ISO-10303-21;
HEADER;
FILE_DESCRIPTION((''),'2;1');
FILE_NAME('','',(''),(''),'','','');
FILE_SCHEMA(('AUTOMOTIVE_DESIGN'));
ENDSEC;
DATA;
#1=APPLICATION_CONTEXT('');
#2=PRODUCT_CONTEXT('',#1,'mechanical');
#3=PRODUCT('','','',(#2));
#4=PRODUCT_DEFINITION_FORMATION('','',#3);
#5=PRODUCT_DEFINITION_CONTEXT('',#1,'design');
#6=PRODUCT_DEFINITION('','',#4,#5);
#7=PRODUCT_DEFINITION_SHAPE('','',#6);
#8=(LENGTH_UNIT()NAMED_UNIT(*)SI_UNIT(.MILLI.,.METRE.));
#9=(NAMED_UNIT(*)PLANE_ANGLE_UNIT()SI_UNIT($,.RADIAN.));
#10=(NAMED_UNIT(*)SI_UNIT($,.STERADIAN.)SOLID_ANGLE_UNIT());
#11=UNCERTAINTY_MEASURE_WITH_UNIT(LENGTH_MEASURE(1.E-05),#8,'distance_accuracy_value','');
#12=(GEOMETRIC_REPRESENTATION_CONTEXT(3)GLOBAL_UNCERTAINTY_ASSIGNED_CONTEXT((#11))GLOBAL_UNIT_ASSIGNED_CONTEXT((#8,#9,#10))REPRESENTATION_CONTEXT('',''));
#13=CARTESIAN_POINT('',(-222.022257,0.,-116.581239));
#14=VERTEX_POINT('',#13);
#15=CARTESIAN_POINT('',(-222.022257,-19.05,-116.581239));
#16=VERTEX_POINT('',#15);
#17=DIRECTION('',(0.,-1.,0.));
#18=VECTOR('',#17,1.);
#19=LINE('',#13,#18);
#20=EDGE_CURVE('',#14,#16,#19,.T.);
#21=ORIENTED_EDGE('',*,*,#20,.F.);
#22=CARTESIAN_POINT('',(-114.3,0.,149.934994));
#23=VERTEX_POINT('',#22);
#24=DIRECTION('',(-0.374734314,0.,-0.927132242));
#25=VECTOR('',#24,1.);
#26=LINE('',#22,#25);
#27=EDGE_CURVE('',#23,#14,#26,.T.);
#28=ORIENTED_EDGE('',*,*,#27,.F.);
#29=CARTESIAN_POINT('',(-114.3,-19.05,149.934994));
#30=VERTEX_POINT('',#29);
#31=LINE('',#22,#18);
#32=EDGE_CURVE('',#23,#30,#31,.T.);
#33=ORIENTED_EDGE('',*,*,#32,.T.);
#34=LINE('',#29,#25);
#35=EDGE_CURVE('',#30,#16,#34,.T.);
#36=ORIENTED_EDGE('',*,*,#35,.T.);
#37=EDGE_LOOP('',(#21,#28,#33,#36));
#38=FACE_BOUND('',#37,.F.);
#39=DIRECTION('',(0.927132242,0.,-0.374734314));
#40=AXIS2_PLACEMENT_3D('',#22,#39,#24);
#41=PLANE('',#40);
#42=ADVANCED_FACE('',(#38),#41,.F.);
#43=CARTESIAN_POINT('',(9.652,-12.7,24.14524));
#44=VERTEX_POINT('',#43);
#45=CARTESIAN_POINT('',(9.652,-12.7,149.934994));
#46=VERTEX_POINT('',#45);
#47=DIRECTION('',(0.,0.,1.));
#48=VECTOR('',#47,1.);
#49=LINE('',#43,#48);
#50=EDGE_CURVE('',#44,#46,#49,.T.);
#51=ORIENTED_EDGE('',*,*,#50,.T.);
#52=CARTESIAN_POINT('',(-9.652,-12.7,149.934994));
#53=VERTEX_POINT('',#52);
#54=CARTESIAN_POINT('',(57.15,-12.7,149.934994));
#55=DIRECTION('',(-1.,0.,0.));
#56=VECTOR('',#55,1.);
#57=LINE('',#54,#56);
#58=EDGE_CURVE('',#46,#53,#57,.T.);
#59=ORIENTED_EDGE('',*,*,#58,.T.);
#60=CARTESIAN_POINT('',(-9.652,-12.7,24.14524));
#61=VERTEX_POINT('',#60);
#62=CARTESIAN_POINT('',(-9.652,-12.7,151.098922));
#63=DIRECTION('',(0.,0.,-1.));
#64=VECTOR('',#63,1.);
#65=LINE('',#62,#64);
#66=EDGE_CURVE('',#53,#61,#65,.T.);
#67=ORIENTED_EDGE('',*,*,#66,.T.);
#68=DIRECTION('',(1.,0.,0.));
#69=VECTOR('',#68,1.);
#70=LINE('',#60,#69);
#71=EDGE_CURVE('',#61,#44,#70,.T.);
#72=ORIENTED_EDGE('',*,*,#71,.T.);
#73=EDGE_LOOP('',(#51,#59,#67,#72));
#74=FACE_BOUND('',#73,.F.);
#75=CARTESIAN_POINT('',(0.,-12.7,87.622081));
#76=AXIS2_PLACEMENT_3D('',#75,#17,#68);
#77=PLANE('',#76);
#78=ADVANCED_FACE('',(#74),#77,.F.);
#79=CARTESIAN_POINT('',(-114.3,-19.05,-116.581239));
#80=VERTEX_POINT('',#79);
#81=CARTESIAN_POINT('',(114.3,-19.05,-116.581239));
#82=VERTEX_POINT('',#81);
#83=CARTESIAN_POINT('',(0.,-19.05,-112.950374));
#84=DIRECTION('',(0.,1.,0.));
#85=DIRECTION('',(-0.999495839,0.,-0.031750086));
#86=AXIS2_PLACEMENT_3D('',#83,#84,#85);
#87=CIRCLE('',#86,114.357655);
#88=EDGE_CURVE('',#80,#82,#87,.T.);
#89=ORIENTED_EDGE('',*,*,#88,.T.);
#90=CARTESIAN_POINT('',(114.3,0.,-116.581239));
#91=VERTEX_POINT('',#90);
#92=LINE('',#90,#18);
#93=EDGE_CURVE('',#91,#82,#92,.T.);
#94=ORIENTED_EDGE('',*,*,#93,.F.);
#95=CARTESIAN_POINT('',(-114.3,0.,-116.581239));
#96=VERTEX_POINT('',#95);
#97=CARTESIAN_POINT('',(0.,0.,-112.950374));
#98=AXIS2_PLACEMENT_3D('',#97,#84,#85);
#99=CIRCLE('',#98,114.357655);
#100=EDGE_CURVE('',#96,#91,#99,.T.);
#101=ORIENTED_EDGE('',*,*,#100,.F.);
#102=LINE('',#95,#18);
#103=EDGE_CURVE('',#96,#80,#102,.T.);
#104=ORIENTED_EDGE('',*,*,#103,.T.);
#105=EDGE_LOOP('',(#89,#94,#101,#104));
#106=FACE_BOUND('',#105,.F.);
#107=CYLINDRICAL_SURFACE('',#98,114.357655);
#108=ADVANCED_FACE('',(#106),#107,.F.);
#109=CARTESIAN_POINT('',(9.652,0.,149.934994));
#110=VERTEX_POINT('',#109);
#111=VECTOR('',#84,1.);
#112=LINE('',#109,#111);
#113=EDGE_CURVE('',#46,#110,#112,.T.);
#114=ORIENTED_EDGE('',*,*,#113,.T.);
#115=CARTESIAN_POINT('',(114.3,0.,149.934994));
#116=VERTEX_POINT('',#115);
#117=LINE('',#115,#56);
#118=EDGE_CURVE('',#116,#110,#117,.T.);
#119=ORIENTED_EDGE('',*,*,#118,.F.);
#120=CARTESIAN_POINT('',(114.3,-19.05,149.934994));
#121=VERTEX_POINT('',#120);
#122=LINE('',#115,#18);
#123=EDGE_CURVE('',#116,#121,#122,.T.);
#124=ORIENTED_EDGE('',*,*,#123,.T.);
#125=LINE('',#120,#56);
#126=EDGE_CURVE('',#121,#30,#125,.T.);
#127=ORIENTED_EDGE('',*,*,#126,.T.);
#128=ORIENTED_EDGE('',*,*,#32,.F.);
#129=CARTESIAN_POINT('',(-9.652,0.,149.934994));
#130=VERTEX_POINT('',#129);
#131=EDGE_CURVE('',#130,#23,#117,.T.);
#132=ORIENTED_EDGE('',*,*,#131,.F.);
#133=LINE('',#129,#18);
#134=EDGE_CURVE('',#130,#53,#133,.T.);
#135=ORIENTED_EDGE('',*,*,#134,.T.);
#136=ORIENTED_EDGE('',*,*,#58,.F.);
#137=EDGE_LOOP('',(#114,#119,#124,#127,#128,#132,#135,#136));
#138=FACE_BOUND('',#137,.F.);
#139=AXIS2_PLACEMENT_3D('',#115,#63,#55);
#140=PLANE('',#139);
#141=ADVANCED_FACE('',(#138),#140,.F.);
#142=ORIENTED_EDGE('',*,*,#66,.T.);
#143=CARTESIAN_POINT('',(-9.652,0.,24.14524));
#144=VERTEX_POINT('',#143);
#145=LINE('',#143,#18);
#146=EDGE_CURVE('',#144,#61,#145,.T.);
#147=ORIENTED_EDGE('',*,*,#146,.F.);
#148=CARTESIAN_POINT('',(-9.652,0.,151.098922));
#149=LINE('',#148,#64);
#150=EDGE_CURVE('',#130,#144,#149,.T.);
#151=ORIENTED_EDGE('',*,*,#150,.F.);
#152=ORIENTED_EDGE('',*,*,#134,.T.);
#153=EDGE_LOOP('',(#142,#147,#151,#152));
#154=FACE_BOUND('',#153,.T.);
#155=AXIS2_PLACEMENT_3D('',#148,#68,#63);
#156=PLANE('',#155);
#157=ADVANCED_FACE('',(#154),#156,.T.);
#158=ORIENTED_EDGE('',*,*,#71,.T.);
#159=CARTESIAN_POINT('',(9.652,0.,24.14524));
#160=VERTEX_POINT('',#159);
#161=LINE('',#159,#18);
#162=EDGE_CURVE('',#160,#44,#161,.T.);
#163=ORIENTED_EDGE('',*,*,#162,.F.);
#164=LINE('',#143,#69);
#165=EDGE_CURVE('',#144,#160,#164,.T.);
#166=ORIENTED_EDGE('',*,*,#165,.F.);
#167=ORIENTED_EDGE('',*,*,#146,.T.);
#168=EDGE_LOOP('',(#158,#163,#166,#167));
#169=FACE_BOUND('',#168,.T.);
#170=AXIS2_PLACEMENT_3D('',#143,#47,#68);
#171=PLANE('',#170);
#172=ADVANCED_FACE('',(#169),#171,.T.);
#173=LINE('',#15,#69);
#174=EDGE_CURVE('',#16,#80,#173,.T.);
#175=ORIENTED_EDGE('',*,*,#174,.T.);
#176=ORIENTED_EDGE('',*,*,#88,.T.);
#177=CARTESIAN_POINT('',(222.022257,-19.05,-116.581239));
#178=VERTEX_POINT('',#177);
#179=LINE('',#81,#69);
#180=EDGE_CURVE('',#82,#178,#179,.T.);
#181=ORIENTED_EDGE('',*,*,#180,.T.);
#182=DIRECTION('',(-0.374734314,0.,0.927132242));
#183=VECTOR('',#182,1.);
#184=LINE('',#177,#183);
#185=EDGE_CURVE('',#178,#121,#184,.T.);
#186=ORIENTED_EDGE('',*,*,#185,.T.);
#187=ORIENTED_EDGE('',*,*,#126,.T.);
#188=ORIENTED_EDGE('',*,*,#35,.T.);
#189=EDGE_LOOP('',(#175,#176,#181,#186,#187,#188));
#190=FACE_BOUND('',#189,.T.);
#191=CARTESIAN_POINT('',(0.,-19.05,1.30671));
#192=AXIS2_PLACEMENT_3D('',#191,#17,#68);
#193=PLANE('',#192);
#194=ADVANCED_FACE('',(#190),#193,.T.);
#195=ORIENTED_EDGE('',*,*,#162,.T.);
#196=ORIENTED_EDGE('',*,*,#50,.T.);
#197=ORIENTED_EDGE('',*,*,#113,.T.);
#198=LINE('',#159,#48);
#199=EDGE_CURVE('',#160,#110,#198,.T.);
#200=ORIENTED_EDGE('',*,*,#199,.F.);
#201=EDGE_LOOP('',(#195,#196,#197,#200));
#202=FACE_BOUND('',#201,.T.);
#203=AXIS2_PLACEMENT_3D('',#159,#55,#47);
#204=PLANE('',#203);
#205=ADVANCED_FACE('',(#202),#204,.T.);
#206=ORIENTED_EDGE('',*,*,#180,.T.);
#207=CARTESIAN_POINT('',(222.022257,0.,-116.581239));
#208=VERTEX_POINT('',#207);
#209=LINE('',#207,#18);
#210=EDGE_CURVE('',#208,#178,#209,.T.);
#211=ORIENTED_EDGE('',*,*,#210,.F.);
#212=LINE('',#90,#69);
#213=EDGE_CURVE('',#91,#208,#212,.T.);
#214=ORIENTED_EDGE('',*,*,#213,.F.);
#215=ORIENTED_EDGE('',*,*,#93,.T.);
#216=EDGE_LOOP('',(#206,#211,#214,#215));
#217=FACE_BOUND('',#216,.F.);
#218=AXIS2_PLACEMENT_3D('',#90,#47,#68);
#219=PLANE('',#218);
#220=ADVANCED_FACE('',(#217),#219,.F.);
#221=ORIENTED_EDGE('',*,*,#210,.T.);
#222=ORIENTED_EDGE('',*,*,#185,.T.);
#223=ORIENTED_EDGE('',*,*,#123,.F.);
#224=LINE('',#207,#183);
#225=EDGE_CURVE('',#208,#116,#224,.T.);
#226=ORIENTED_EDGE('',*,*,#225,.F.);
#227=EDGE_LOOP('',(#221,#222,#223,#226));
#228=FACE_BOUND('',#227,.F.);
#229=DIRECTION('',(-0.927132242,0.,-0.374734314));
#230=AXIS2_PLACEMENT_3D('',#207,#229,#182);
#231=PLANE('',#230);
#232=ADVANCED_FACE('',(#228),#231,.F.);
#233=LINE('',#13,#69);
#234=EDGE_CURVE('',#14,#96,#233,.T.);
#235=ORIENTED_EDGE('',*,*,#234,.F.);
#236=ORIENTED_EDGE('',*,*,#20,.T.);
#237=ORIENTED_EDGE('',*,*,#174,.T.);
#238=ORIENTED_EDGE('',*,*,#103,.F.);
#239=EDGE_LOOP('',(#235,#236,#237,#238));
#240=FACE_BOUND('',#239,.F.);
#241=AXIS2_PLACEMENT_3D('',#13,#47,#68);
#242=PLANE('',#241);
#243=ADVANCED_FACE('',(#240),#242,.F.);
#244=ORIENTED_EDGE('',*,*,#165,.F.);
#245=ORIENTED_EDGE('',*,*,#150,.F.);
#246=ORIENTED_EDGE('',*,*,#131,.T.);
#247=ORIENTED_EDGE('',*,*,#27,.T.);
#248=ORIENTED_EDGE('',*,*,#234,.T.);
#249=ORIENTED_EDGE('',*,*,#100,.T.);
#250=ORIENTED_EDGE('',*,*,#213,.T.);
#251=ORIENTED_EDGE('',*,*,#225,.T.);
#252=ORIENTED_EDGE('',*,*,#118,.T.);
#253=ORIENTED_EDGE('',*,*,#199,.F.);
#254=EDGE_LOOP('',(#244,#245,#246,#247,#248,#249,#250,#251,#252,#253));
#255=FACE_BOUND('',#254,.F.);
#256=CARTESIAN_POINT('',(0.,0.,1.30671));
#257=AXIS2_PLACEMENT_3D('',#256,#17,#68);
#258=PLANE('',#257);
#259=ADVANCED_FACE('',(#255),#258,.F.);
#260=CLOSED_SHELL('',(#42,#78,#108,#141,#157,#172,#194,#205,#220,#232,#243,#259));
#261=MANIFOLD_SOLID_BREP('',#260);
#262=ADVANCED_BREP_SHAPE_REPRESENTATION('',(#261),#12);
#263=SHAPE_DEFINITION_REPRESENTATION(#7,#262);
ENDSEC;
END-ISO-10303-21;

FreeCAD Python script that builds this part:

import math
import FreeCAD as App
import Part
import Sketcher

V = App.Vector
Q = App.Units.Quantity

doc = App.newDocument("Part")
body = doc.addObject("PartDesign::Body", "Body")

# Sketch on XZ plane
sketch1 = doc.addObject("Sketcher::SketchObject", "Sketch")
body.addObject(sketch1)
sketch1.AttachmentSupport = (doc.XZ_Plane, [""])
sketch1.MapMode = "FlatFace"
sketch1.addGeometry([
    Part.LineSegment(V(114, 150, 0), V(-114, 150, 0)),  # 0
    Part.LineSegment(V(-114, 150, 0), V(-222, -117, 0)),  # 1
    Part.LineSegment(V(-222, -117, 0), V(-114, -117, 0)),  # 2
    Part.ArcOfCircle(Part.Circle(V(0, -113, 0), V(0, 0, 1), 114), math.radians(-2), math.radians(182)),  # 3
    Part.LineSegment(V(114, -117, 0), V(222, -117, 0)),  # 4
    Part.LineSegment(V(222, -117, 0), V(114, 150, 0)),  # 5
], False)
sketch1.addConstraint([
    Sketcher.Constraint("Coincident", 0, 2, 1, 1),
    Sketcher.Constraint("Coincident", 1, 2, 2, 1),
    Sketcher.Constraint("Coincident", 2, 2, 3, 2),
    Sketcher.Constraint("Coincident", 3, 1, 4, 1),
    Sketcher.Constraint("Coincident", 4, 2, 5, 1),
    Sketcher.Constraint("Coincident", 5, 2, 0, 1),
    Sketcher.Constraint("Horizontal", 0),
    Sketcher.Constraint("Horizontal", 2),
    Sketcher.Constraint("Horizontal", 4),
    Sketcher.Constraint("Symmetric", 2, 2, 3, 1, -2),
    Sketcher.Constraint("Vertical", 0, 2, 2, 2),
    Sketcher.Constraint("Vertical", 3, 1, 5, 2),
    Sketcher.Constraint("Equal", 2, 4),
    Sketcher.Constraint("DistanceX", 0, 2, 0, 1, Q("9 in")),
    Sketcher.Constraint("Radius", 3, 114.357655),
    Sketcher.Constraint("Distance", 1, 287.463019),
    Sketcher.Constraint("DistanceX", 2, 1, 2, 2, 107.722257),
    Sketcher.Constraint("DistanceY", 1, 2, -1, 1, 116.581239),
])
pad1 = doc.addObject("PartDesign::Pad", "Pad")
body.addObject(pad1)
pad1.Profile = sketch1
pad1.Length = Q("0.75 in")

# Sketch on XZ plane
sketch2 = doc.addObject("Sketcher::SketchObject", "Sketch001")
body.addObject(sketch2)
sketch2.AttachmentSupport = (doc.XZ_Plane, [""])
sketch2.MapMode = "FlatFace"
sketch2.addGeometry([
    Part.LineSegment(V(-10, 24, 0), V(10, 24, 0)),
    Part.LineSegment(V(10, 24, 0), V(10, 151, 0)),
    Part.LineSegment(V(10, 151, 0), V(-10, 151, 0)),
    Part.LineSegment(V(-10, 151, 0), V(-10, 24, 0)),
], False)
sketch2.addConstraint([
    Sketcher.Constraint("Coincident", 0, 2, 1, 1),
    Sketcher.Constraint("Coincident", 1, 2, 2, 1),
    Sketcher.Constraint("Coincident", 2, 2, 3, 1),
    Sketcher.Constraint("Coincident", 3, 2, 0, 1),
    Sketcher.Constraint("Horizontal", 0),
    Sketcher.Constraint("Vertical", 1),
    Sketcher.Constraint("Horizontal", 2),
    Sketcher.Constraint("Vertical", 3),
    Sketcher.Constraint("DistanceX", 0, 1, 0, 2, Q("0.76 in")),
    Sketcher.Constraint("DistanceX", -1, 1, 0, 2, Q("0.38 in")),
    Sketcher.Constraint("DistanceY", -1, 1, 0, 2, Q("0.9506 in")),
    Sketcher.Constraint("DistanceY", 1, 1, 1, 2, 126.953682),
])
pocket1 = doc.addObject("PartDesign::Pocket", "Pocket")
body.addObject(pocket1)
pocket1.Profile = sketch2
pocket1.Length = Q("0.5 in")
pocket1.Reversed = True

doc.recompute()
